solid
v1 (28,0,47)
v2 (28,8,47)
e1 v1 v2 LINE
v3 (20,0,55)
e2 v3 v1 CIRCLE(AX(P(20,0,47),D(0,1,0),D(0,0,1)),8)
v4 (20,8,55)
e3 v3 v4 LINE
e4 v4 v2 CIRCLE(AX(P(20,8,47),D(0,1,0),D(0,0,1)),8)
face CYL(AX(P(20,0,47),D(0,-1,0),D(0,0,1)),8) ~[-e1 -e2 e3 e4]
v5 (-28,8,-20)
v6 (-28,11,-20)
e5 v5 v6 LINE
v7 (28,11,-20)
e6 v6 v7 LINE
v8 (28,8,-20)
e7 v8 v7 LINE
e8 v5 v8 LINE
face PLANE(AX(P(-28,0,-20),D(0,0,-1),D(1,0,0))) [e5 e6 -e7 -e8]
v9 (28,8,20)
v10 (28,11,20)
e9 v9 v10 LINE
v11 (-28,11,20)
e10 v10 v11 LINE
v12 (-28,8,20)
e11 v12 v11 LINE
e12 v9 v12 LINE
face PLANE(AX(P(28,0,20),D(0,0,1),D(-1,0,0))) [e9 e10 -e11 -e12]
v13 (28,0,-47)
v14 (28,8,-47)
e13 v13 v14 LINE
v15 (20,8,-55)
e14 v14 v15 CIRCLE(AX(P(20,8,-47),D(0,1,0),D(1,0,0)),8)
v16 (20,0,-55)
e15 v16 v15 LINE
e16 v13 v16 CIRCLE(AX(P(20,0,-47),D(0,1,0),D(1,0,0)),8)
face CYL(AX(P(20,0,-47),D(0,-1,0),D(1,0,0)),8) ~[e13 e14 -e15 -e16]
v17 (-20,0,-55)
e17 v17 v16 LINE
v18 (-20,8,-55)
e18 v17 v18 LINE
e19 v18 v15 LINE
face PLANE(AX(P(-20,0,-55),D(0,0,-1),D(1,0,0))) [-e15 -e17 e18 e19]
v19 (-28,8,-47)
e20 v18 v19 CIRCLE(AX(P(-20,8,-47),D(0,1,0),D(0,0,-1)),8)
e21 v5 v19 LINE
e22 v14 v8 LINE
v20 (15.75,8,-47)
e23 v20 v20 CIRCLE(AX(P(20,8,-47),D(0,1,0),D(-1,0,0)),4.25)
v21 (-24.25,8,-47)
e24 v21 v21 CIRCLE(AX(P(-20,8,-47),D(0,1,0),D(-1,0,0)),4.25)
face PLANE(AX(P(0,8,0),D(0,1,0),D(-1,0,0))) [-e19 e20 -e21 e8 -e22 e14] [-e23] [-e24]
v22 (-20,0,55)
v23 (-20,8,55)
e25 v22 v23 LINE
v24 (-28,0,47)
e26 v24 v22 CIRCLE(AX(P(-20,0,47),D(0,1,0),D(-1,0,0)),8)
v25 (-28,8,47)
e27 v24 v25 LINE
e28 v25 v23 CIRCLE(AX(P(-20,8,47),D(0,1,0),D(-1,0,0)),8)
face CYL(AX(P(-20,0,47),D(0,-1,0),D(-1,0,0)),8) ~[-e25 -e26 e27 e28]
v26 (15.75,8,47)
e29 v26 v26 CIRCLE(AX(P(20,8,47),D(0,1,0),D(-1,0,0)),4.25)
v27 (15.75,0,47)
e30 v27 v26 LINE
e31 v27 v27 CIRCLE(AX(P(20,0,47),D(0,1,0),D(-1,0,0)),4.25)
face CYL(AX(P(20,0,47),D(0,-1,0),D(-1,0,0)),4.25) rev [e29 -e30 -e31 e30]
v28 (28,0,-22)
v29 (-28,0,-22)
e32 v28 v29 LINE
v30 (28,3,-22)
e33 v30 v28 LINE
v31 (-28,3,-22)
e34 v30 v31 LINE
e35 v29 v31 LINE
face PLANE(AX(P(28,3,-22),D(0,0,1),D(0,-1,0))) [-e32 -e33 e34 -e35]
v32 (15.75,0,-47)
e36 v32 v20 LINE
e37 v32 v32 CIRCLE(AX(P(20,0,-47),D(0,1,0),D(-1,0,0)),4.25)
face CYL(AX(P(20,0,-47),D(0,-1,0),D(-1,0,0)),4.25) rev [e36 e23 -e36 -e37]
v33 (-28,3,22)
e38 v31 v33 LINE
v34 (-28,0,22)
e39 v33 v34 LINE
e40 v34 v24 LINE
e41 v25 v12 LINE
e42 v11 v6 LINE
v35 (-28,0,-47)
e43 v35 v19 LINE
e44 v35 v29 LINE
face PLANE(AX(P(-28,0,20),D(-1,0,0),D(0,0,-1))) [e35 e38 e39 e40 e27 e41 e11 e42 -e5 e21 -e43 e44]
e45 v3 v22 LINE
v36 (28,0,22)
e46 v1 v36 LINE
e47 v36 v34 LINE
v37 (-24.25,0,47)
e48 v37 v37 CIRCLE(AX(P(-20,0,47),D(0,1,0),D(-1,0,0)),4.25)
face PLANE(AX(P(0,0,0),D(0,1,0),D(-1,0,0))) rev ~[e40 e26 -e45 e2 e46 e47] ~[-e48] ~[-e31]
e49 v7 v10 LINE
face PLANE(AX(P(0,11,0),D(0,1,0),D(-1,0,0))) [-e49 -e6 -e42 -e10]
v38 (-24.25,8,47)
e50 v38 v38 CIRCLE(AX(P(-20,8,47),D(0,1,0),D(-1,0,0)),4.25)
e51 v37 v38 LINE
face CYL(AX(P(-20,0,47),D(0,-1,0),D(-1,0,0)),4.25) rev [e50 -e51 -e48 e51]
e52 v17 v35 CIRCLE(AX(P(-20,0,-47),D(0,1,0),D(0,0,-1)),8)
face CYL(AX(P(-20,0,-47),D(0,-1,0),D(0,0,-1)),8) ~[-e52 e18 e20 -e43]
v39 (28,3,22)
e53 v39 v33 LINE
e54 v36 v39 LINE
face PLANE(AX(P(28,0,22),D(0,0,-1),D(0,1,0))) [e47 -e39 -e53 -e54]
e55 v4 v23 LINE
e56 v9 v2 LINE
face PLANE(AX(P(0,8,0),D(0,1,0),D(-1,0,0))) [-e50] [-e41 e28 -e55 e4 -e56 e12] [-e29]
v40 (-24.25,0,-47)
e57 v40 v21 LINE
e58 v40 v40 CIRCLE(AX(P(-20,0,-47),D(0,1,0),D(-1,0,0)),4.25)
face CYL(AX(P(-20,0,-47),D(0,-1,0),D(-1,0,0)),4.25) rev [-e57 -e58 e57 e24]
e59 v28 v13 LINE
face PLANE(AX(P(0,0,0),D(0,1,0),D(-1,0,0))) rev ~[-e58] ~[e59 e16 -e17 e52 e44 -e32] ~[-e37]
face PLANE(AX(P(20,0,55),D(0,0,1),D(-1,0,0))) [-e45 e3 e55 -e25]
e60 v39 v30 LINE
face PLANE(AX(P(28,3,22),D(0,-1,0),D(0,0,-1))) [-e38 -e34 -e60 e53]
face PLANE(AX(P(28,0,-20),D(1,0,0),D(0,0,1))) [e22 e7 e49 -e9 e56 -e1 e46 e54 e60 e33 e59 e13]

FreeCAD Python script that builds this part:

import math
import FreeCAD as App
import Part
import Sketcher
from FreeCAD import Vector


def add_polygon(sketch, points):
    """Adds a closed chain of lines whose ends are joined by coincident constraints."""
    first, n = sketch.GeometryCount, len(points)
    for a, b in zip(points, points[1:] + points[:1]):
        sketch.addGeometry(Part.LineSegment(App.Vector(*a, 0), App.Vector(*b, 0)), False)
    for i in range(n):
        sketch.addConstraint(Sketcher.Constraint("Coincident", first + i, 2, first + (i + 1) % n, 1))

doc = App.newDocument("Part")
body = doc.addObject("PartDesign::Body", "Body")
body.AllowCompound = True

# Sketch on XZ plane
sketch1 = body.newObject("Sketcher::SketchObject", "Sketch")
sketch1.AttachmentSupport = (doc.getObject("XZ_Plane"), [""])
sketch1.MapMode = "FlatFace"
sketch1.addGeometry([
    Part.LineSegment(Vector(-20, 55, 0), Vector(20, 55, 0)),  # 0
    Part.ArcOfCircle(Part.Circle(Vector(20, 47, 0), Vector(0, 0, 1), 8), math.radians(0), math.radians(90)),  # 1
    Part.LineSegment(Vector(28, 47, 0), Vector(28, 20, 0)),  # 2
    Part.LineSegment(Vector(28, 20, 0), Vector(-28, 20, 0)),  # 3
    Part.LineSegment(Vector(-28, 20, 0), Vector(-28, 47, 0)),  # 4
    Part.ArcOfCircle(Part.Circle(Vector(-20, 47, 0), Vector(0, 0, 1), 8), math.radians(90), math.radians(180)),  # 5
    Part.Circle(Vector(20, 47, 0), Vector(0, 0, 1), 4.2),  # 6
    Part.Circle(Vector(-20, 47, 0), Vector(0, 0, 1), 4.2),  # 7
    Part.LineSegment(Vector(-28, -20, 0), Vector(28, -20, 0)),  # 8
    Part.LineSegment(Vector(28, -20, 0), Vector(28, -47, 0)),  # 9
    Part.ArcOfCircle(Part.Circle(Vector(20, -47, 0), Vector(0, 0, 1), 8), math.radians(-90), math.radians(0)),  # 10
    Part.LineSegment(Vector(20, -55, 0), Vector(-20, -55, 0)),  # 11
    Part.ArcOfCircle(Part.Circle(Vector(-20, -47, 0), Vector(0, 0, 1), 8), math.radians(180), math.radians(270)),  # 12
    Part.LineSegment(Vector(-28, -47, 0), Vector(-28, -20, 0)),  # 13
    Part.Circle(Vector(20, -47, 0), Vector(0, 0, 1), 4.2),  # 14
    Part.Circle(Vector(-20, -47, 0), Vector(0, 0, 1), 4.2),  # 15
], False)
sketch1.addConstraint([
    Sketcher.Constraint("Tangent", 0, 2, 1, 2),
    Sketcher.Constraint("Tangent", 1, 1, 2, 1),
    Sketcher.Constraint("Coincident", 2, 2, 3, 1),
    Sketcher.Constraint("Coincident", 3, 2, 4, 1),
    Sketcher.Constraint("Tangent", 4, 2, 5, 2),
    Sketcher.Constraint("Tangent", 5, 1, 0, 1),
    Sketcher.Constraint("Coincident", 8, 2, 9, 1),
    Sketcher.Constraint("Tangent", 9, 2, 10, 2),
    Sketcher.Constraint("Tangent", 10, 1, 11, 1),
    Sketcher.Constraint("Tangent", 11, 2, 12, 2),
    Sketcher.Constraint("Tangent", 12, 1, 13, 1),
    Sketcher.Constraint("Coincident", 13, 2, 8, 1),
    Sketcher.Constraint("Horizontal", 0),
    Sketcher.Constraint("Vertical", 2),
    Sketcher.Constraint("Horizontal", 3),
    Sketcher.Constraint("Vertical", 4),
    Sketcher.Constraint("Horizontal", 8),
    Sketcher.Constraint("Vertical", 9),
    Sketcher.Constraint("Horizontal", 11),
    Sketcher.Constraint("Vertical", 13),
    Sketcher.Constraint("Coincident", 6, 3, 1, 3),
    Sketcher.Constraint("Coincident", 7, 3, 5, 3),
    Sketcher.Constraint("Coincident", 14, 3, 10, 3),
    Sketcher.Constraint("Coincident", 15, 3, 12, 3),
    Sketcher.Constraint("Equal", 1, 5),
    Sketcher.Constraint("Equal", 6, 7),
    Sketcher.Constraint("Equal", 5, 10),
    Sketcher.Constraint("Equal", 10, 12),
    Sketcher.Constraint("Equal", 7, 14),
    Sketcher.Constraint("Equal", 14, 15),
    Sketcher.Constraint("Symmetric", 5, 3, 10, 3, -1, 1),
    Sketcher.Constraint("Symmetric", 2, 2, 13, 2, -1, 1),
    Sketcher.Constraint("Vertical", 6, 3, 10, 3),
    Sketcher.Constraint("Radius", 1, 8.0),
    Sketcher.Constraint("Diameter", 6, 8.5),
    Sketcher.Constraint("DistanceX", 0, 1, 0, 2, 40.0),
    Sketcher.Constraint("DistanceY", 8, 2, 2, 2, 40.0),
    Sketcher.Constraint("DistanceY", 2, 2, 2, 1, 27.0),
])
pad1 = body.newObject("PartDesign::Pad", "Pad")
pad1.Profile = sketch1
pad1.Length = 8
pad1.Reversed = True

# Sketch on XZ plane
sketch2 = body.newObject("Sketcher::SketchObject", "Sketch001")
sketch2.AttachmentSupport = (doc.getObject("XZ_Plane"), [""])
sketch2.MapMode = "FlatFace"
add_polygon(sketch2, [(-28, 20), (28, 20), (28, -20), (-28, -20)])  # lines 0-3
sketch2.addConstraint([
    Sketcher.Constraint("Horizontal", 0),
    Sketcher.Constraint("Vertical", 1),
    Sketcher.Constraint("Horizontal", 2),
    Sketcher.Constraint("Vertical", 3),
    Sketcher.Constraint("Symmetric", 0, 2, 2, 2, -1, 1),
    Sketcher.Constraint("DistanceX", 0, 1, 0, 2, 56.0),
    Sketcher.Constraint("DistanceY", 1, 2, 1, 1, 40.0),
])
pad2 = body.newObject("PartDesign::Pad", "Pad001")
pad2.Profile = sketch2
pad2.Length = 11
pad2.Reversed = True

# Sketch on YZ plane
sketch3 = body.newObject("Sketcher::SketchObject", "Sketch002")
sketch3.AttachmentSupport = (doc.getObject("YZ_Plane"), [""])
sketch3.MapMode = "FlatFace"
sketch3.AttachmentOffset = App.Placement(Vector(0, 0, 28), App.Rotation())
add_polygon(sketch3, [(3, -22), (3, 22), (0, 22), (0, -22)])  # lines 0-3
sketch3.addConstraint([
    Sketcher.Constraint("Vertical", 0),
    Sketcher.Constraint("Horizontal", 1),
    Sketcher.Constraint("Vertical", 2),
    Sketcher.Constraint("Horizontal", 3),
    Sketcher.Constraint("Symmetric", 1, 2, 2, 2, -1, 1),
    Sketcher.Constraint("DistanceX", 1, 2, 1, 1, 3.0),
    Sketcher.Constraint("DistanceY", 0, 1, 0, 2, 44.0),
])
pocket1 = body.newObject("PartDesign::Pocket", "Pocket")
pocket1.Profile = sketch3
pocket1.Type = "ThroughAll"

doc.recompute()
